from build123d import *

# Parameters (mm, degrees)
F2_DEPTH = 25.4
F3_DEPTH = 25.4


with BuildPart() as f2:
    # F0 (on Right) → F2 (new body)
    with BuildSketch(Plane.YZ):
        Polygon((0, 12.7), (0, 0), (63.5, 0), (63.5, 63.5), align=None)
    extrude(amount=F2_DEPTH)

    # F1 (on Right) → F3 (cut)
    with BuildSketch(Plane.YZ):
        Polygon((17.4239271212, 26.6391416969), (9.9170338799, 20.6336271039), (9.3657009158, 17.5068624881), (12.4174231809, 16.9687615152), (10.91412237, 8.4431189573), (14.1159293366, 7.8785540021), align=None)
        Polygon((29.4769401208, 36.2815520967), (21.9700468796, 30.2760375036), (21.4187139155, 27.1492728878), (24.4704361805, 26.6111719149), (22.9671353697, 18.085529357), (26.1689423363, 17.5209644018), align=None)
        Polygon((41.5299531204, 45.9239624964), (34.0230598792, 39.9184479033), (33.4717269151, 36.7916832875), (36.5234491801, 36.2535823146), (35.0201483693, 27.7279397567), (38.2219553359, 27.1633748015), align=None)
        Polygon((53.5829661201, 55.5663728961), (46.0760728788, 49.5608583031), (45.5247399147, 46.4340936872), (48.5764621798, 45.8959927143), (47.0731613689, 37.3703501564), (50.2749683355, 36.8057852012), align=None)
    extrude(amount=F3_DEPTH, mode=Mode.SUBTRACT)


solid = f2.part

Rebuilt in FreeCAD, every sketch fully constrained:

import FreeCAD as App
import Part
import Sketcher

V = App.Vector
Q = App.Units.Quantity


def add_polygon(sketch, points):
    """Adds a closed chain of lines whose ends are joined by coincident constraints."""
    first, n = sketch.GeometryCount, len(points)
    for a, b in zip(points, points[1:] + points[:1]):
        sketch.addGeometry(Part.LineSegment(App.Vector(*a, 0), App.Vector(*b, 0)), False)
    for i in range(n):
        sketch.addConstraint(Sketcher.Constraint("Coincident", first + i, 2, first + (i + 1) % n, 1))

doc = App.newDocument("Part")
body = doc.addObject("PartDesign::Body", "Body")

sketch1 = body.newObject("Sketcher::SketchObject", "Sketch")
sketch1.AttachmentSupport = (doc.getObject("YZ_Plane"), [""])
sketch1.MapMode = "FlatFace"
add_polygon(sketch1, [(0, 13), (0, 0), (64, 0), (64, 64)])
sketch1.addConstraint(Sketcher.Constraint("Vertical", 0))
sketch1.addConstraint(Sketcher.Constraint("Horizontal", 1))
sketch1.addConstraint(Sketcher.Constraint("Vertical", 2))
sketch1.addConstraint(Sketcher.Constraint("Coincident", 0, 2, -1, 1))
sketch1.addConstraint(Sketcher.Constraint("Equal", 1, 2))
sketch1.addConstraint(Sketcher.Constraint("DistanceX", 1, 1, 1, 2, Q("2.5 in")))
sketch1.addConstraint(Sketcher.Constraint("DistanceY", 0, 2, 0, 1, Q("0.5 in")))
pad1 = body.newObject("PartDesign::Pad", "Pad")
pad1.Profile = sketch1
pad1.Length = Q("1 in")

sketch2 = body.newObject("Sketcher::SketchObject", "Sketch001")
sketch2.AttachmentSupport = (doc.getObject("YZ_Plane"), [""])
sketch2.MapMode = "FlatFace"
add_polygon(sketch2, [(17.4, 26.6), (9.9, 20.6), (9.4, 17.5), (12.4, 17), (10.9, 8.4), (14.1, 7.9)])
add_polygon(sketch2, [(29.5, 36.3), (22, 30.3), (21.4, 27.1), (24.5, 26.6), (23, 18.1), (26.2, 17.5)])
add_polygon(sketch2, [(41.5, 45.9), (34, 39.9), (33.5, 36.8), (36.5, 36.3), (35, 27.7), (38.2, 27.2)])
add_polygon(sketch2, [(53.6, 55.6), (46.1, 49.6), (45.5, 46.4), (48.6, 45.9), (47.1, 37.4), (50.3, 36.8)])
sketch2.addConstraint(Sketcher.Constraint("Perpendicular", 1, 2))
sketch2.addConstraint(Sketcher.Constraint("Perpendicular", 2, 3))
sketch2.addConstraint(Sketcher.Constraint("Perpendicular", 3, 4))
sketch2.addConstraint(Sketcher.Constraint("Perpendicular", 4, 5))
sketch2.addConstraint(Sketcher.Constraint("Parallel", 0, 6))
sketch2.addConstraint(Sketcher.Constraint("Parallel", 5, 7))
sketch2.addConstraint(Sketcher.Constraint("Perpendicular", 7, 8))
sketch2.addConstraint(Sketcher.Constraint("Perpendicular", 8, 9))
sketch2.addConstraint(Sketcher.Constraint("Perpendicular", 9, 10))
sketch2.addConstraint(Sketcher.Constraint("Perpendicular", 10, 11))
sketch2.addConstraint(Sketcher.Constraint("Parallel", 6, 12))
sketch2.addConstraint(Sketcher.Constraint("Parallel", 11, 13))
sketch2.addConstraint(Sketcher.Constraint("Perpendicular", 13, 14))
sketch2.addConstraint(Sketcher.Constraint("Perpendicular", 14, 15))
sketch2.addConstraint(Sketcher.Constraint("Perpendicular", 15, 16))
sketch2.addConstraint(Sketcher.Constraint("Perpendicular", 16, 17))
sketch2.addConstraint(Sketcher.Constraint("Parallel", 12, 18))
sketch2.addConstraint(Sketcher.Constraint("Parallel", 17, 19))
sketch2.addConstraint(Sketcher.Constraint("Perpendicular", 19, 20))
sketch2.addConstraint(Sketcher.Constraint("Perpendicular", 20, 21))
sketch2.addConstraint(Sketcher.Constraint("Perpendicular", 21, 22))
sketch2.addConstraint(Sketcher.Constraint("Perpendicular", 22, 23))
sketch2.addConstraint(Sketcher.Constraint("Equal", 0, 6))
sketch2.addConstraint(Sketcher.Constraint("Equal", 1, 7))
sketch2.addConstraint(Sketcher.Constraint("Equal", 2, 8))
sketch2.addConstraint(Sketcher.Constraint("Equal", 3, 9))
sketch2.addConstraint(Sketcher.Constraint("Equal", 6, 12))
sketch2.addConstraint(Sketcher.Constraint("Equal", 7, 13))
sketch2.addConstraint(Sketcher.Constraint("Equal", 8, 14))
sketch2.addConstraint(Sketcher.Constraint("Equal", 9, 15))
sketch2.addConstraint(Sketcher.Constraint("Equal", 12, 18))
sketch2.addConstraint(Sketcher.Constraint("Equal", 13, 19))
sketch2.addConstraint(Sketcher.Constraint("Equal", 14, 20))
sketch2.addConstraint(Sketcher.Constraint("Equal", 15, 21))
sketch2.addConstraint(Sketcher.Constraint("Angle", 1, Q("-100 deg")))
sketch2.addConstraint(Sketcher.Constraint("Distance", 5, Q("0.75 in")))
sketch2.addConstraint(Sketcher.Constraint("Distance", 1, Q("0.125 in")))
sketch2.addConstraint(Sketcher.Constraint("Distance", 2, Q("0.122 in")))
sketch2.addConstraint(Sketcher.Constraint("Distance", 4, Q("0.128 in")))
sketch2.addConstraint(Sketcher.Constraint("DistanceX", -1, 1, 1, 2, 9.365701))
sketch2.addConstraint(Sketcher.Constraint("DistanceX", 3, 2, 2, 2, 1.503301))
sketch2.addConstraint(Sketcher.Constraint("DistanceY", -1, 1, 2, 2, 16.968762))
sketch2.addConstraint(Sketcher.Constraint("DistanceY", -1, 1, 8, 2, 26.611172))
sketch2.addConstraint(Sketcher.Constraint("DistanceX", -1, 1, 11, 2, 29.47694))
sketch2.addConstraint(Sketcher.Constraint("DistanceX", -1, 1, 12, 2, 34.02306))
sketch2.addConstraint(Sketcher.Constraint("DistanceY", -1, 1, 15, 2, 27.72794))
sketch2.addConstraint(Sketcher.Constraint("DistanceY", -1, 1, 18, 2, 49.560858))
sketch2.addConstraint(Sketcher.Constraint("DistanceX", -1, 1, 19, 2, 45.52474))
pocket1 = body.newObject("PartDesign::Pocket", "Pocket")
pocket1.Profile = sketch2
pocket1.Length = Q("1 in")
pocket1.Reversed = True

doc.recompute()
